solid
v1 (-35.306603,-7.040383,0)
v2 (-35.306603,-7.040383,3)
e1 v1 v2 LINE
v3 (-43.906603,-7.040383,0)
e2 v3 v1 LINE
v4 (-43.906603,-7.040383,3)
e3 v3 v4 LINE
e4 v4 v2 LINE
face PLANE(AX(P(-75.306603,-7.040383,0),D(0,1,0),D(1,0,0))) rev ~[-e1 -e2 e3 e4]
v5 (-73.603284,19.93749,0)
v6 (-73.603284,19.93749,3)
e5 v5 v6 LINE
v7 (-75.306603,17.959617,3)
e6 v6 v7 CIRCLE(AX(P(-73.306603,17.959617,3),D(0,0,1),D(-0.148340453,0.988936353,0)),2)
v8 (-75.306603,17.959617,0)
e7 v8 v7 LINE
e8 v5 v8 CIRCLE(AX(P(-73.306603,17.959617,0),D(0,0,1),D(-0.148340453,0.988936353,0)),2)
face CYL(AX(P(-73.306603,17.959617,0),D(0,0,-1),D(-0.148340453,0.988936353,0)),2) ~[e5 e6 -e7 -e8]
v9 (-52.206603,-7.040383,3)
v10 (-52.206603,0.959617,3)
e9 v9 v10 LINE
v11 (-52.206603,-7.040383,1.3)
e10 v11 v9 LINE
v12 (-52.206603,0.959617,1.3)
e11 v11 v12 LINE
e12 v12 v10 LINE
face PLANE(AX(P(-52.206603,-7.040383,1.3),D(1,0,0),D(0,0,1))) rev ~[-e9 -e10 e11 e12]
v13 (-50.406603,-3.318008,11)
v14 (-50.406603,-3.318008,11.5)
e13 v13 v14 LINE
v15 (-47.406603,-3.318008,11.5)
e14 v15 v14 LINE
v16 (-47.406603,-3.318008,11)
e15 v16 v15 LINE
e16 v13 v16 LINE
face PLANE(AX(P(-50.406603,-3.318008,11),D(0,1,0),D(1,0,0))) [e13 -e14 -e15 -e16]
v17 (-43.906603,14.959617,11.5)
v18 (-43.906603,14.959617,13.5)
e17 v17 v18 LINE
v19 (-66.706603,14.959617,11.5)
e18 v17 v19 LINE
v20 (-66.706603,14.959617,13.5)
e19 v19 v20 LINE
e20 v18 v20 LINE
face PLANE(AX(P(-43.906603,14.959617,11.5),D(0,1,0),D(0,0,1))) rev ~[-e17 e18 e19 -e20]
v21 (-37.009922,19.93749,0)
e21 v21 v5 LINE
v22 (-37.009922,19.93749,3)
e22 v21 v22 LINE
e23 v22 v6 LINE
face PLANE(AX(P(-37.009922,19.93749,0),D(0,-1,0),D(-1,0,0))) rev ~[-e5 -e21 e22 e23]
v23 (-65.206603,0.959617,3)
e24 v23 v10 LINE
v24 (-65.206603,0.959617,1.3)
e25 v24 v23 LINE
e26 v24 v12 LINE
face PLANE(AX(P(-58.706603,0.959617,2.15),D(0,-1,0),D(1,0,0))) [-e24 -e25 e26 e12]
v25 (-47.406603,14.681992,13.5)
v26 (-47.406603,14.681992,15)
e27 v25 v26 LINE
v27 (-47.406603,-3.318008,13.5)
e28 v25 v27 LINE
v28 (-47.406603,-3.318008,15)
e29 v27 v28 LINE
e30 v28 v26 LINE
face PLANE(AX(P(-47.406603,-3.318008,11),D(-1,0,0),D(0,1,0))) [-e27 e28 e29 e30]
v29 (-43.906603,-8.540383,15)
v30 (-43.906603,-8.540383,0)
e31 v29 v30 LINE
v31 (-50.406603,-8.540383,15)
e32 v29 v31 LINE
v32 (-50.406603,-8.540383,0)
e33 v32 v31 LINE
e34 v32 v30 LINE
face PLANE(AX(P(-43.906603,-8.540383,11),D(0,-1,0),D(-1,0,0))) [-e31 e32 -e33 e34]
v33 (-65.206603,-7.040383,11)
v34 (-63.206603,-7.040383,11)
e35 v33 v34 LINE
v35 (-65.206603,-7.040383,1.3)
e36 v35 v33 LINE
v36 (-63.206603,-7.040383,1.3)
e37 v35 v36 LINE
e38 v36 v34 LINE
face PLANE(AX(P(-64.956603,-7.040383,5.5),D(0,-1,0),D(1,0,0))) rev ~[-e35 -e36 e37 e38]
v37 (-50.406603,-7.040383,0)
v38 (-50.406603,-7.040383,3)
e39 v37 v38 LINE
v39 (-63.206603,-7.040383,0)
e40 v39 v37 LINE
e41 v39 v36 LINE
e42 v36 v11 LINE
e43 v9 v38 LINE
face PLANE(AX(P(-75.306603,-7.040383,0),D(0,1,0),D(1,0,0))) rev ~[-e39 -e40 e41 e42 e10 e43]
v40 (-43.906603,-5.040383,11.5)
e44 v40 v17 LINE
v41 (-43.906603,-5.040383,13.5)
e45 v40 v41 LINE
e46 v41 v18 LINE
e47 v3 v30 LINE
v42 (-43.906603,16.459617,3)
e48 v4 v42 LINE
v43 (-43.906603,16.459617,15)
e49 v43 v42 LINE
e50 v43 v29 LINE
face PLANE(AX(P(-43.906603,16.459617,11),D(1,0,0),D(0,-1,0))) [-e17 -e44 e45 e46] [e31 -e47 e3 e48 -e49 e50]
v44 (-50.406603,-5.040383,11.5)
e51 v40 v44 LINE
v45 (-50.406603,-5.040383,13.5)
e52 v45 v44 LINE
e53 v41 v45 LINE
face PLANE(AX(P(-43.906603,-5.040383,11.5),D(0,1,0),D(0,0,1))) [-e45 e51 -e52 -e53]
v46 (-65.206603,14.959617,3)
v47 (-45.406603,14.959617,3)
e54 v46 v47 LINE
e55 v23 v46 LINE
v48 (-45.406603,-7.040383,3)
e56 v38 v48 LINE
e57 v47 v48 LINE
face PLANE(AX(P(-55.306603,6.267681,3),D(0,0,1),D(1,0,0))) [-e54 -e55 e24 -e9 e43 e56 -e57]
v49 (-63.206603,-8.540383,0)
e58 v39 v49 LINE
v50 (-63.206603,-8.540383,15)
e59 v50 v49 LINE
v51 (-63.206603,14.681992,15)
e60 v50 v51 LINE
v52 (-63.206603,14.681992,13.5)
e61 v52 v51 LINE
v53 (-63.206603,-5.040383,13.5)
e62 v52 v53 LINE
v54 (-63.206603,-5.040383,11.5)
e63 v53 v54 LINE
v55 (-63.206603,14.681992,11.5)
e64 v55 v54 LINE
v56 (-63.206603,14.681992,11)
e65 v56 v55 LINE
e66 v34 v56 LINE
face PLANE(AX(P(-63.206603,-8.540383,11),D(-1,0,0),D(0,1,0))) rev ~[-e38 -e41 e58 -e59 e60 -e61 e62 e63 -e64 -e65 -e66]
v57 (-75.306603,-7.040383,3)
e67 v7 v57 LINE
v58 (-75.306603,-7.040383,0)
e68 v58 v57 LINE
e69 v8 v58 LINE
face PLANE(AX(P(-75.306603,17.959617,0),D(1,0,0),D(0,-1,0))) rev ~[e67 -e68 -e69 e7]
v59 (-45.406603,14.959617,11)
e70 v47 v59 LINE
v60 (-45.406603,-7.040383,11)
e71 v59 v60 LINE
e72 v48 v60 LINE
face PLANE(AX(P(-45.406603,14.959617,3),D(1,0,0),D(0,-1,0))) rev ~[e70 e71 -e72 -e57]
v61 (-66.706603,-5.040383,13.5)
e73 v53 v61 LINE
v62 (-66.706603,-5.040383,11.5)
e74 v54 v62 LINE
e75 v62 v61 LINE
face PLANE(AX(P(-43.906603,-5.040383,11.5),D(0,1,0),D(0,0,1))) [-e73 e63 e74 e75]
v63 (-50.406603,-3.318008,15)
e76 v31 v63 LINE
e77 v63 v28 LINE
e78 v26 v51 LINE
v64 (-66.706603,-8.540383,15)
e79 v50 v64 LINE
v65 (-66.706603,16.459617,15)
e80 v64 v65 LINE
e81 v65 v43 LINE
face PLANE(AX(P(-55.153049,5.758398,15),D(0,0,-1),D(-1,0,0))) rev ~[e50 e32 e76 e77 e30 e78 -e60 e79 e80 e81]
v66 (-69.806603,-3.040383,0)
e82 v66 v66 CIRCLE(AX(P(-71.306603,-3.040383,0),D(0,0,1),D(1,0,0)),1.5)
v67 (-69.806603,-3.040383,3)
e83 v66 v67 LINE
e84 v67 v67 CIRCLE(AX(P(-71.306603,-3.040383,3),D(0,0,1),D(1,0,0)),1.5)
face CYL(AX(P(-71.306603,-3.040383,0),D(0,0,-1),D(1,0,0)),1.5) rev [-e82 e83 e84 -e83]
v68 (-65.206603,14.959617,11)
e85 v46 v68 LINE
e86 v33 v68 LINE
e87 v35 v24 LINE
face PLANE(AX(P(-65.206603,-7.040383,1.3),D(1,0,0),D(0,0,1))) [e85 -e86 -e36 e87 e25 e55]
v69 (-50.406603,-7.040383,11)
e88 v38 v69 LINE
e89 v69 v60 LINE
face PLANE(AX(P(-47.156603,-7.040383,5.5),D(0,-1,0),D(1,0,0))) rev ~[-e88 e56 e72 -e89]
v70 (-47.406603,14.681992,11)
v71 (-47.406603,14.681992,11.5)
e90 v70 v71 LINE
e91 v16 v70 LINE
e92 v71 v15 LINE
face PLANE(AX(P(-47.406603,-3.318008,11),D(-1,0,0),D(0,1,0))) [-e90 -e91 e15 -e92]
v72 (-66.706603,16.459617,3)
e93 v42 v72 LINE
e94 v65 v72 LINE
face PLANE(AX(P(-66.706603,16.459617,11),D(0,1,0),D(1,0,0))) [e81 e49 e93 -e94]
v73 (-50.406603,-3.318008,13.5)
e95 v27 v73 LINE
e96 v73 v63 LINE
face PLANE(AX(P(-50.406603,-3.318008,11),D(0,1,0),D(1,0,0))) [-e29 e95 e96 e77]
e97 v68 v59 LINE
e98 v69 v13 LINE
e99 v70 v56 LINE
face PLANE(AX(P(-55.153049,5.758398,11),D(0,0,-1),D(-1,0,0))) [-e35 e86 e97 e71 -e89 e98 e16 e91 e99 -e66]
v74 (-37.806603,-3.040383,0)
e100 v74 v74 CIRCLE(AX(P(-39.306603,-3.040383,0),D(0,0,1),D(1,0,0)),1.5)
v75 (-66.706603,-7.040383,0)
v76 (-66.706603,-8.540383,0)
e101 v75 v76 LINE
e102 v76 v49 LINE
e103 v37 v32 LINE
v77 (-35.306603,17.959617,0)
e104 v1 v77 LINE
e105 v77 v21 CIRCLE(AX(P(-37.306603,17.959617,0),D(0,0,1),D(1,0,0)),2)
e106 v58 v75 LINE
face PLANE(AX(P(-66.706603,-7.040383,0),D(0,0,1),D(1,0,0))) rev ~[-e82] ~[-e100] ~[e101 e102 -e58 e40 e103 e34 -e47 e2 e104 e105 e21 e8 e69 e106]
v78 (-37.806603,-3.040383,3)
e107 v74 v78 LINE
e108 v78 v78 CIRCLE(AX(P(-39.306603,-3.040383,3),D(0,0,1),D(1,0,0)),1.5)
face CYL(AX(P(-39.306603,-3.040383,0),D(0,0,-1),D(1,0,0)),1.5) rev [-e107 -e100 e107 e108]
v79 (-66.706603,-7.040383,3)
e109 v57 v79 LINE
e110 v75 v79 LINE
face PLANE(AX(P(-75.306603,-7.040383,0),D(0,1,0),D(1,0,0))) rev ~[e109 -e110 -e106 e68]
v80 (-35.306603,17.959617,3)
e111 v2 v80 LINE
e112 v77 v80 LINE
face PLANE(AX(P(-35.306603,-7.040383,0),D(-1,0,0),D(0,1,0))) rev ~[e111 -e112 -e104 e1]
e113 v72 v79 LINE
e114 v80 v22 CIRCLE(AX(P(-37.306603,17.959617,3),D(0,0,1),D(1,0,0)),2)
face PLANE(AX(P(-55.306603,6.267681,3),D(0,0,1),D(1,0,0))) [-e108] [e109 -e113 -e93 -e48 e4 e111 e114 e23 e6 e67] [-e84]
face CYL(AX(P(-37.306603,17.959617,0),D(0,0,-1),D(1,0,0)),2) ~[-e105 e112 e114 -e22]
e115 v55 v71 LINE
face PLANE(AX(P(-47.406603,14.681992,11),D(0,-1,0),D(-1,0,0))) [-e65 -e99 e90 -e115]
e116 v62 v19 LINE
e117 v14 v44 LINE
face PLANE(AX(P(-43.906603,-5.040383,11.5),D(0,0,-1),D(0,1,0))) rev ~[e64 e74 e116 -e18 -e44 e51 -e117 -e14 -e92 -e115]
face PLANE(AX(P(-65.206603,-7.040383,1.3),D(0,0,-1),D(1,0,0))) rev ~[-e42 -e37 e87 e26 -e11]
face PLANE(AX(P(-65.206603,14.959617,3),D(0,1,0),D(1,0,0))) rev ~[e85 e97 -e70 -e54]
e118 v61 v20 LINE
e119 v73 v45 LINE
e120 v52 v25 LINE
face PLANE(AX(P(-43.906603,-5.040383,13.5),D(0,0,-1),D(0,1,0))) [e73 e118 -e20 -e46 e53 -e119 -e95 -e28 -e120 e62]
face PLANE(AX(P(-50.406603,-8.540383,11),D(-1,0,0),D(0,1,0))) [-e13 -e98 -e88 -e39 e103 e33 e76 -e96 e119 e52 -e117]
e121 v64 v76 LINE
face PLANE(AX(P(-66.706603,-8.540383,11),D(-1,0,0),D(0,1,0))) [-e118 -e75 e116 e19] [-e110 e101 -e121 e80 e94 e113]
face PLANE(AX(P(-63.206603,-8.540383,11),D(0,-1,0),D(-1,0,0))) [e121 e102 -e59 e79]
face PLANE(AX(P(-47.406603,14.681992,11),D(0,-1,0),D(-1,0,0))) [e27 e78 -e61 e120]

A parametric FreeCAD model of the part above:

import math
import FreeCAD as App
import Part
import Sketcher

V = App.Vector

doc = App.newDocument("Part")
body = doc.addObject("PartDesign::Body", "Body")

sketch1 = body.newObject("Sketcher::SketchObject", "Sketch")
sketch1.AttachmentSupport = (doc.getObject("XY_Plane"), [""])
sketch1.MapMode = "FlatFace"
sketch1.addGeometry(Part.LineSegment(V(-75.306603, 17.959617, 0), V(-75.306603, -7.040383, 0)), False)
sketch1.addGeometry(Part.LineSegment(V(-75.306603, -7.040383, 0), V(-35.306603, -7.040383, 0)), False)
sketch1.addGeometry(Part.LineSegment(V(-35.306603, -7.040383, 0), V(-35.306603, 17.959617, 0)), False)
sketch1.addGeometry(Part.ArcOfCircle(Part.Circle(V(-37.306603, 17.959617, 0), V(0, 0, 1), 2), math.radians(0), math.radians(81.469234)), False)
sketch1.addGeometry(Part.LineSegment(V(-37.009922, 19.93749, 0), V(-73.603284, 19.93749, 0)), False)
sketch1.addGeometry(Part.ArcOfCircle(Part.Circle(V(-73.306603, 17.959617, 0), V(0, 0, 1), 2), math.radians(98.530766), math.radians(180)), False)
sketch1.addGeometry(Part.Circle(V(-71.306603, -3.040383, 0), V(0, 0, 1), 1.5), False)
sketch1.addGeometry(Part.Circle(V(-39.306603, -3.040383, 0), V(0, 0, 1), 1.5), False)
sketch1.addConstraint(Sketcher.Constraint("Coincident", 0, 2, 1, 1))
sketch1.addConstraint(Sketcher.Constraint("Coincident", 1, 2, 2, 1))
sketch1.addConstraint(Sketcher.Constraint("Tangent", 2, 2, 3, 1))
sketch1.addConstraint(Sketcher.Constraint("Coincident", 3, 2, 4, 1))
sketch1.addConstraint(Sketcher.Constraint("Coincident", 4, 2, 5, 1))
sketch1.addConstraint(Sketcher.Constraint("Tangent", 5, 2, 0, 1))
sketch1.addConstraint(Sketcher.Constraint("Vertical", 0))
sketch1.addConstraint(Sketcher.Constraint("Horizontal", 1))
sketch1.addConstraint(Sketcher.Constraint("Vertical", 2))
sketch1.addConstraint(Sketcher.Constraint("Horizontal", 4))
sketch1.addConstraint(Sketcher.Constraint("Equal", 3, 5))
sketch1.addConstraint(Sketcher.Constraint("Equal", 6, 7))
sketch1.addConstraint(Sketcher.Constraint("Horizontal", 3, 3, 5, 3))
sketch1.addConstraint(Sketcher.Constraint("Horizontal", 6, 3, 7, 3))
sketch1.addConstraint(Sketcher.Constraint("Diameter", 6, 3.0))
sketch1.addConstraint(Sketcher.Constraint("Radius", 3, 2.0))
sketch1.addConstraint(Sketcher.Constraint("DistanceX", 1, 1, 1, 2, 40.0))
sketch1.addConstraint(Sketcher.Constraint("DistanceY", 0, 2, 0, 1, 25.0))
sketch1.addConstraint(Sketcher.Constraint("DistanceX", 5, 3, 6, 3, 2.0))
sketch1.addConstraint(Sketcher.Constraint("DistanceY", 6, 3, 5, 3, 21.0))
sketch1.addConstraint(Sketcher.Constraint("DistanceX", 7, 3, 3, 3, 2.0))
sketch1.addConstraint(Sketcher.Constraint("DistanceX", 4, 2, 4, 1, 36.593362))
sketch1.addConstraint(Sketcher.Constraint("DistanceX", 3, 2, -1, 1, 37.009922))
sketch1.addConstraint(Sketcher.Constraint("DistanceY", -1, 1, 3, 2, 19.93749))
pad1 = body.newObject("PartDesign::Pad", "Pad")
pad1.Profile = sketch1
pad1.Length = 3

sketch2 = body.newObject("Sketcher::SketchObject", "Sketch001")
sketch2.AttachmentSupport = (doc.getObject("XY_Plane"), [""])
sketch2.MapMode = "FlatFace"
sketch2.AttachmentOffset = App.Placement(V(0, 0, 3), App.Rotation())
sketch2.addGeometry(Part.LineSegment(V(-66.706603, -7.040383, 0), V(-65.206603, -7.040383, 0)), False)
sketch2.addGeometry(Part.LineSegment(V(-65.206603, -7.040383, 0), V(-65.206603, 14.959617, 0)), False)
sketch2.addGeometry(Part.LineSegment(V(-65.206603, 14.959617, 0), V(-45.406603, 14.959617, 0)), False)
sketch2.addGeometry(Part.LineSegment(V(-45.406603, 14.959617, 0), V(-45.406603, -7.040383, 0)), False)
sketch2.addGeometry(Part.LineSegment(V(-45.406603, -7.040383, 0), V(-43.906603, -7.040383, 0)), False)
sketch2.addGeometry(Part.LineSegment(V(-43.906603, -7.040383, 0), V(-43.906603, 16.459617, 0)), False)
sketch2.addGeometry(Part.LineSegment(V(-43.906603, 16.459617, 0), V(-66.706603, 16.459617, 0)), False)
sketch2.addGeometry(Part.LineSegment(V(-66.706603, 16.459617, 0), V(-66.706603, -7.040383, 0)), False)
sketch2.addConstraint(Sketcher.Constraint("Coincident", 0, 2, 1, 1))
sketch2.addConstraint(Sketcher.Constraint("Coincident", 1, 2, 2, 1))
sketch2.addConstraint(Sketcher.Constraint("Coincident", 2, 2, 3, 1))
sketch2.addConstraint(Sketcher.Constraint("Coincident", 3, 2, 4, 1))
sketch2.addConstraint(Sketcher.Constraint("Coincident", 4, 2, 5, 1))
sketch2.addConstraint(Sketcher.Constraint("Coincident", 5, 2, 6, 1))
sketch2.addConstraint(Sketcher.Constraint("Coincident", 6, 2, 7, 1))
sketch2.addConstraint(Sketcher.Constraint("Coincident", 7, 2, 0, 1))
sketch2.addConstraint(Sketcher.Constraint("Horizontal", 0))
sketch2.addConstraint(Sketcher.Constraint("Vertical", 1))
sketch2.addConstraint(Sketcher.Constraint("Horizontal", 2))
sketch2.addConstraint(Sketcher.Constraint("Vertical", 3))
sketch2.addConstraint(Sketcher.Constraint("Horizontal", 4))
sketch2.addConstraint(Sketcher.Constraint("Vertical", 5))
sketch2.addConstraint(Sketcher.Constraint("Horizontal", 6))
sketch2.addConstraint(Sketcher.Constraint("Vertical", 7))
sketch2.addConstraint(Sketcher.Constraint("Horizontal", 0, 2, 3, 2))
sketch2.addConstraint(Sketcher.Constraint("Equal", 0, 4))
sketch2.addConstraint(Sketcher.Constraint("DistanceY", 1, 1, 1, 2, 22.0))
sketch2.addConstraint(Sketcher.Constraint("DistanceX", 0, 1, 0, 2, 1.5))
sketch2.addConstraint(Sketcher.Constraint("DistanceX", 2, 1, 2, 2, 19.8))
sketch2.addConstraint(Sketcher.Constraint("DistanceY", 5, 1, 5, 2, 23.5))
sketch2.addConstraint(Sketcher.Constraint("DistanceX", 0, 2, -1, 1, 65.206603))
sketch2.addConstraint(Sketcher.Constraint("DistanceY", 0, 2, -1, 1, 7.040383))
pad2 = body.newObject("PartDesign::Pad", "Pad001")
pad2.Profile = sketch2
pad2.Length = 8

sketch3 = body.newObject("Sketcher::SketchObject", "Sketch002")
sketch3.AttachmentSupport = (doc.getObject("XZ_Plane"), [""])
sketch3.MapMode = "FlatFace"
sketch3.AttachmentOffset = App.Placement(V(0, 0, 7.040383), App.Rotation())
sketch3.addGeometry(Part.LineSegment(V(-65.206603, 3, 0), V(-65.206603, 1.3, 0)), False)
sketch3.addGeometry(Part.LineSegment(V(-65.206603, 1.3, 0), V(-52.206603, 1.3, 0)), False)
sketch3.addGeometry(Part.LineSegment(V(-52.206603, 1.3, 0), V(-52.206603, 3, 0)), False)
sketch3.addGeometry(Part.LineSegment(V(-52.206603, 3, 0), V(-65.206603, 3, 0)), False)
sketch3.addConstraint(Sketcher.Constraint("Coincident", 0, 2, 1, 1))
sketch3.addConstraint(Sketcher.Constraint("Coincident", 1, 2, 2, 1))
sketch3.addConstraint(Sketcher.Constraint("Coincident", 2, 2, 3, 1))
sketch3.addConstraint(Sketcher.Constraint("Coincident", 3, 2, 0, 1))
sketch3.addConstraint(Sketcher.Constraint("Vertical", 0))
sketch3.addConstraint(Sketcher.Constraint("Horizontal", 1))
sketch3.addConstraint(Sketcher.Constraint("Vertical", 2))
sketch3.addConstraint(Sketcher.Constraint("Horizontal", 3))
sketch3.addConstraint(Sketcher.Constraint("DistanceX", 1, 1, 1, 2, 13.0))
sketch3.addConstraint(Sketcher.Constraint("DistanceY", 0, 2, 0, 1, 1.7))
sketch3.addConstraint(Sketcher.Constraint("DistanceY", -1, 1, 2, 2, 3.0))
sketch3.addConstraint(Sketcher.Constraint("DistanceX", 0, 2, -1, 1, 65.206603))
pocket1 = body.newObject("PartDesign::Pocket", "Pocket")
pocket1.Profile = sketch3
pocket1.Length = 8

sketch4 = body.newObject("Sketcher::SketchObject", "Sketch003")
sketch4.AttachmentSupport = (doc.getObject("XZ_Plane"), [""])
sketch4.MapMode = "FlatFace"
sketch4.AttachmentOffset = App.Placement(V(0, 0, 7.040383), App.Rotation())
sketch4.addGeometry(Part.LineSegment(V(-66.706603, 11, 0), V(-66.706603, 0, 0)), False)
sketch4.addGeometry(Part.LineSegment(V(-66.706603, 0, 0), V(-63.206603, 0, 0)), False)
sketch4.addGeometry(Part.LineSegment(V(-63.206603, 0, 0), V(-63.206603, 11, 0)), False)
sketch4.addGeometry(Part.LineSegment(V(-63.206603, 11, 0), V(-66.706603, 11, 0)), False)
sketch4.addGeometry(Part.LineSegment(V(-50.406603, 11, 0), V(-50.406603, 0, 0)), False)
sketch4.addGeometry(Part.LineSegment(V(-50.406603, 0, 0), V(-43.906603, 0, 0)), False)
sketch4.addGeometry(Part.LineSegment(V(-43.906603, 0, 0), V(-43.906603, 11, 0)), False)
sketch4.addGeometry(Part.LineSegment(V(-43.906603, 11, 0), V(-50.406603, 11, 0)), False)
sketch4.addConstraint(Sketcher.Constraint("Coincident", 0, 2, 1, 1))
sketch4.addConstraint(Sketcher.Constraint("Coincident", 1, 2, 2, 1))
sketch4.addConstraint(Sketcher.Constraint("Coincident", 2, 2, 3, 1))
sketch4.addConstraint(Sketcher.Constraint("Coincident", 3, 2, 0, 1))
sketch4.addConstraint(Sketcher.Constraint("Coincident", 4, 2, 5, 1))
sketch4.addConstraint(Sketcher.Constraint("Coincident", 5, 2, 6, 1))
sketch4.addConstraint(Sketcher.Constraint("Coincident", 6, 2, 7, 1))
sketch4.addConstraint(Sketcher.Constraint("Coincident", 7, 2, 4, 1))
sketch4.addConstraint(Sketcher.Constraint("Vertical", 0))
sketch4.addConstraint(Sketcher.Constraint("Horizontal", 1))
sketch4.addConstraint(Sketcher.Constraint("Vertical", 2))
sketch4.addConstraint(Sketcher.Constraint("Horizontal", 3))
sketch4.addConstraint(Sketcher.Constraint("Vertical", 4))
sketch4.addConstraint(Sketcher.Constraint("Horizontal", 5))
sketch4.addConstraint(Sketcher.Constraint("Vertical", 6))
sketch4.addConstraint(Sketcher.Constraint("Horizontal", 7))
sketch4.addConstraint(Sketcher.Constraint("PointOnObject", 0, 2, -1))
sketch4.addConstraint(Sketcher.Constraint("PointOnObject", 4, 2, -1))
sketch4.addConstraint(Sketcher.Constraint("Horizontal", 3, 2, 6, 2))
sketch4.addConstraint(Sketcher.Constraint("DistanceY", 0, 2, 0, 1, 11.0))
sketch4.addConstraint(Sketcher.Constraint("DistanceX", 1, 1, 1, 2, 3.5))
sketch4.addConstraint(Sketcher.Constraint("DistanceX", 5, 1, 5, 2, 6.5))
sketch4.addConstraint(Sketcher.Constraint("DistanceX", 1, 2, 4, 2, 12.8))
sketch4.addConstraint(Sketcher.Constraint("DistanceX", 0, 2, -1, 1, 66.706603))
pad3 = body.newObject("PartDesign::Pad", "Pad002")
pad3.Profile = sketch4
pad3.Length = 1.5

sketch5 = body.newObject("Sketcher::SketchObject", "Sketch004")
sketch5.AttachmentSupport = (doc.getObject("XY_Plane"), [""])
sketch5.MapMode = "FlatFace"
sketch5.AttachmentOffset = App.Placement(V(0, 0, 11), App.Rotation())
sketch5.addGeometry(Part.LineSegment(V(-63.206603, -8.540383, 0), V(-63.206603, 14.681992, 0)), False)
sketch5.addGeometry(Part.LineSegment(V(-63.206603, 14.681992, 0), V(-47.406603, 14.681992, 0)), False)
sketch5.addGeometry(Part.LineSegment(V(-47.406603, 14.681992, 0), V(-47.406603, -3.318008, 0)), False)
sketch5.addGeometry(Part.LineSegment(V(-47.406603, -3.318008, 0), V(-50.406603, -3.318008, 0)), False)
sketch5.addGeometry(Part.LineSegment(V(-50.406603, -3.318008, 0), V(-50.406603, -8.540383, 0)), False)
sketch5.addGeometry(Part.LineSegment(V(-50.406603, -8.540383, 0), V(-43.906603, -8.540383, 0)), False)
sketch5.addGeometry(Part.LineSegment(V(-43.906603, -8.540383, 0), V(-43.906603, 16.459617, 0)), False)
sketch5.addGeometry(Part.LineSegment(V(-43.906603, 16.459617, 0), V(-66.706603, 16.459617, 0)), False)
sketch5.addGeometry(Part.LineSegment(V(-66.706603, 16.459617, 0), V(-66.706603, -8.540383, 0)), False)
sketch5.addGeometry(Part.LineSegment(V(-66.706603, -8.540383, 0), V(-63.206603, -8.540383, 0)), False)
sketch5.addConstraint(Sketcher.Constraint("Coincident", 0, 2, 1, 1))
sketch5.addConstraint(Sketcher.Constraint("Coincident", 1, 2, 2, 1))
sketch5.addConstraint(Sketcher.Constraint("Coincident", 2, 2, 3, 1))
sketch5.addConstraint(Sketcher.Constraint("Coincident", 3, 2, 4, 1))
sketch5.addConstraint(Sketcher.Constraint("Coincident", 4, 2, 5, 1))
sketch5.addConstraint(Sketcher.Constraint("Coincident", 5, 2, 6, 1))
sketch5.addConstraint(Sketcher.Constraint("Coincident", 6, 2, 7, 1))
sketch5.addConstraint(Sketcher.Constraint("Coincident", 7, 2, 8, 1))
sketch5.addConstraint(Sketcher.Constraint("Coincident", 8, 2, 9, 1))
sketch5.addConstraint(Sketcher.Constraint("Coincident", 9, 2, 0, 1))
sketch5.addConstraint(Sketcher.Constraint("Vertical", 0))
sketch5.addConstraint(Sketcher.Constraint("Horizontal", 1))
sketch5.addConstraint(Sketcher.Constraint("Vertical", 2))
sketch5.addConstraint(Sketcher.Constraint("Horizontal", 3))
sketch5.addConstraint(Sketcher.Constraint("Vertical", 4))
sketch5.addConstraint(Sketcher.Constraint("Horizontal", 5))
sketch5.addConstraint(Sketcher.Constraint("Vertical", 6))
sketch5.addConstraint(Sketcher.Constraint("Horizontal", 7))
sketch5.addConstraint(Sketcher.Constraint("Vertical", 8))
sketch5.addConstraint(Sketcher.Constraint("Horizontal", 9))
sketch5.addConstraint(Sketcher.Constraint("Horizontal", 5, 2, 8, 2))
sketch5.addConstraint(Sketcher.Constraint("DistanceX", 3, 2, 3, 1, 3.0))
sketch5.addConstraint(Sketcher.Constraint("DistanceY", 2, 2, 2, 1, 18.0))
sketch5.addConstraint(Sketcher.Constraint("DistanceY", 6, 1, 6, 2, 25.0))
sketch5.addConstraint(Sketcher.Constraint("DistanceX", 1, 1, 1, 2, 15.8))
sketch5.addConstraint(Sketcher.Constraint("DistanceX", 5, 1, 5, 2, 6.5))
sketch5.addConstraint(Sketcher.Constraint("DistanceX", 7, 2, 7, 1, 22.8))
sketch5.addConstraint(Sketcher.Constraint("DistanceY", 0, 1, 0, 2, 23.222375))
sketch5.addConstraint(Sketcher.Constraint("DistanceX", 0, 2, -1, 1, 63.206603))
sketch5.addConstraint(Sketcher.Constraint("DistanceY", -1, 1, 0, 2, 14.681992))
pad4 = body.newObject("PartDesign::Pad", "Pad003")
pad4.Profile = sketch5
pad4.Length = 4

sketch6 = body.newObject("Sketcher::SketchObject", "Sketch005")
sketch6.AttachmentSupport = (doc.getObject("YZ_Plane"), [""])
sketch6.MapMode = "FlatFace"
sketch6.AttachmentOffset = App.Placement(V(0, 0, -43.906603), App.Rotation())
sketch6.addGeometry(Part.LineSegment(V(14.959617, 11.5, 0), V(-5.040383, 11.5, 0)), False)
sketch6.addGeometry(Part.LineSegment(V(-5.040383, 11.5, 0), V(-5.040383, 13.5, 0)), False)
sketch6.addGeometry(Part.LineSegment(V(-5.040383, 13.5, 0), V(14.959617, 13.5, 0)), False)
sketch6.addGeometry(Part.LineSegment(V(14.959617, 13.5, 0), V(14.959617, 11.5, 0)), False)
sketch6.addConstraint(Sketcher.Constraint("Coincident", 0, 2, 1, 1))
sketch6.addConstraint(Sketcher.Constraint("Coincident", 1, 2, 2, 1))
sketch6.addConstraint(Sketcher.Constraint("Coincident", 2, 2, 3, 1))
sketch6.addConstraint(Sketcher.Constraint("Coincident", 3, 2, 0, 1))
sketch6.addConstraint(Sketcher.Constraint("Horizontal", 0))
sketch6.addConstraint(Sketcher.Constraint("Vertical", 1))
sketch6.addConstraint(Sketcher.Constraint("Horizontal", 2))
sketch6.addConstraint(Sketcher.Constraint("Vertical", 3))
sketch6.addConstraint(Sketcher.Constraint("DistanceX", 0, 2, 0, 1, 20.0))
sketch6.addConstraint(Sketcher.Constraint("DistanceY", 1, 1, 1, 2, 2.0))
sketch6.addConstraint(Sketcher.Constraint("DistanceY", -1, 1, 0, 2, 11.5))
sketch6.addConstraint(Sketcher.Constraint("DistanceX", 0, 2, -1, 1, 5.040383))
pocket2 = body.newObject("PartDesign::Pocket", "Pocket001")
pocket2.Profile = sketch6
pocket2.Length = 22.8

doc.recompute()
